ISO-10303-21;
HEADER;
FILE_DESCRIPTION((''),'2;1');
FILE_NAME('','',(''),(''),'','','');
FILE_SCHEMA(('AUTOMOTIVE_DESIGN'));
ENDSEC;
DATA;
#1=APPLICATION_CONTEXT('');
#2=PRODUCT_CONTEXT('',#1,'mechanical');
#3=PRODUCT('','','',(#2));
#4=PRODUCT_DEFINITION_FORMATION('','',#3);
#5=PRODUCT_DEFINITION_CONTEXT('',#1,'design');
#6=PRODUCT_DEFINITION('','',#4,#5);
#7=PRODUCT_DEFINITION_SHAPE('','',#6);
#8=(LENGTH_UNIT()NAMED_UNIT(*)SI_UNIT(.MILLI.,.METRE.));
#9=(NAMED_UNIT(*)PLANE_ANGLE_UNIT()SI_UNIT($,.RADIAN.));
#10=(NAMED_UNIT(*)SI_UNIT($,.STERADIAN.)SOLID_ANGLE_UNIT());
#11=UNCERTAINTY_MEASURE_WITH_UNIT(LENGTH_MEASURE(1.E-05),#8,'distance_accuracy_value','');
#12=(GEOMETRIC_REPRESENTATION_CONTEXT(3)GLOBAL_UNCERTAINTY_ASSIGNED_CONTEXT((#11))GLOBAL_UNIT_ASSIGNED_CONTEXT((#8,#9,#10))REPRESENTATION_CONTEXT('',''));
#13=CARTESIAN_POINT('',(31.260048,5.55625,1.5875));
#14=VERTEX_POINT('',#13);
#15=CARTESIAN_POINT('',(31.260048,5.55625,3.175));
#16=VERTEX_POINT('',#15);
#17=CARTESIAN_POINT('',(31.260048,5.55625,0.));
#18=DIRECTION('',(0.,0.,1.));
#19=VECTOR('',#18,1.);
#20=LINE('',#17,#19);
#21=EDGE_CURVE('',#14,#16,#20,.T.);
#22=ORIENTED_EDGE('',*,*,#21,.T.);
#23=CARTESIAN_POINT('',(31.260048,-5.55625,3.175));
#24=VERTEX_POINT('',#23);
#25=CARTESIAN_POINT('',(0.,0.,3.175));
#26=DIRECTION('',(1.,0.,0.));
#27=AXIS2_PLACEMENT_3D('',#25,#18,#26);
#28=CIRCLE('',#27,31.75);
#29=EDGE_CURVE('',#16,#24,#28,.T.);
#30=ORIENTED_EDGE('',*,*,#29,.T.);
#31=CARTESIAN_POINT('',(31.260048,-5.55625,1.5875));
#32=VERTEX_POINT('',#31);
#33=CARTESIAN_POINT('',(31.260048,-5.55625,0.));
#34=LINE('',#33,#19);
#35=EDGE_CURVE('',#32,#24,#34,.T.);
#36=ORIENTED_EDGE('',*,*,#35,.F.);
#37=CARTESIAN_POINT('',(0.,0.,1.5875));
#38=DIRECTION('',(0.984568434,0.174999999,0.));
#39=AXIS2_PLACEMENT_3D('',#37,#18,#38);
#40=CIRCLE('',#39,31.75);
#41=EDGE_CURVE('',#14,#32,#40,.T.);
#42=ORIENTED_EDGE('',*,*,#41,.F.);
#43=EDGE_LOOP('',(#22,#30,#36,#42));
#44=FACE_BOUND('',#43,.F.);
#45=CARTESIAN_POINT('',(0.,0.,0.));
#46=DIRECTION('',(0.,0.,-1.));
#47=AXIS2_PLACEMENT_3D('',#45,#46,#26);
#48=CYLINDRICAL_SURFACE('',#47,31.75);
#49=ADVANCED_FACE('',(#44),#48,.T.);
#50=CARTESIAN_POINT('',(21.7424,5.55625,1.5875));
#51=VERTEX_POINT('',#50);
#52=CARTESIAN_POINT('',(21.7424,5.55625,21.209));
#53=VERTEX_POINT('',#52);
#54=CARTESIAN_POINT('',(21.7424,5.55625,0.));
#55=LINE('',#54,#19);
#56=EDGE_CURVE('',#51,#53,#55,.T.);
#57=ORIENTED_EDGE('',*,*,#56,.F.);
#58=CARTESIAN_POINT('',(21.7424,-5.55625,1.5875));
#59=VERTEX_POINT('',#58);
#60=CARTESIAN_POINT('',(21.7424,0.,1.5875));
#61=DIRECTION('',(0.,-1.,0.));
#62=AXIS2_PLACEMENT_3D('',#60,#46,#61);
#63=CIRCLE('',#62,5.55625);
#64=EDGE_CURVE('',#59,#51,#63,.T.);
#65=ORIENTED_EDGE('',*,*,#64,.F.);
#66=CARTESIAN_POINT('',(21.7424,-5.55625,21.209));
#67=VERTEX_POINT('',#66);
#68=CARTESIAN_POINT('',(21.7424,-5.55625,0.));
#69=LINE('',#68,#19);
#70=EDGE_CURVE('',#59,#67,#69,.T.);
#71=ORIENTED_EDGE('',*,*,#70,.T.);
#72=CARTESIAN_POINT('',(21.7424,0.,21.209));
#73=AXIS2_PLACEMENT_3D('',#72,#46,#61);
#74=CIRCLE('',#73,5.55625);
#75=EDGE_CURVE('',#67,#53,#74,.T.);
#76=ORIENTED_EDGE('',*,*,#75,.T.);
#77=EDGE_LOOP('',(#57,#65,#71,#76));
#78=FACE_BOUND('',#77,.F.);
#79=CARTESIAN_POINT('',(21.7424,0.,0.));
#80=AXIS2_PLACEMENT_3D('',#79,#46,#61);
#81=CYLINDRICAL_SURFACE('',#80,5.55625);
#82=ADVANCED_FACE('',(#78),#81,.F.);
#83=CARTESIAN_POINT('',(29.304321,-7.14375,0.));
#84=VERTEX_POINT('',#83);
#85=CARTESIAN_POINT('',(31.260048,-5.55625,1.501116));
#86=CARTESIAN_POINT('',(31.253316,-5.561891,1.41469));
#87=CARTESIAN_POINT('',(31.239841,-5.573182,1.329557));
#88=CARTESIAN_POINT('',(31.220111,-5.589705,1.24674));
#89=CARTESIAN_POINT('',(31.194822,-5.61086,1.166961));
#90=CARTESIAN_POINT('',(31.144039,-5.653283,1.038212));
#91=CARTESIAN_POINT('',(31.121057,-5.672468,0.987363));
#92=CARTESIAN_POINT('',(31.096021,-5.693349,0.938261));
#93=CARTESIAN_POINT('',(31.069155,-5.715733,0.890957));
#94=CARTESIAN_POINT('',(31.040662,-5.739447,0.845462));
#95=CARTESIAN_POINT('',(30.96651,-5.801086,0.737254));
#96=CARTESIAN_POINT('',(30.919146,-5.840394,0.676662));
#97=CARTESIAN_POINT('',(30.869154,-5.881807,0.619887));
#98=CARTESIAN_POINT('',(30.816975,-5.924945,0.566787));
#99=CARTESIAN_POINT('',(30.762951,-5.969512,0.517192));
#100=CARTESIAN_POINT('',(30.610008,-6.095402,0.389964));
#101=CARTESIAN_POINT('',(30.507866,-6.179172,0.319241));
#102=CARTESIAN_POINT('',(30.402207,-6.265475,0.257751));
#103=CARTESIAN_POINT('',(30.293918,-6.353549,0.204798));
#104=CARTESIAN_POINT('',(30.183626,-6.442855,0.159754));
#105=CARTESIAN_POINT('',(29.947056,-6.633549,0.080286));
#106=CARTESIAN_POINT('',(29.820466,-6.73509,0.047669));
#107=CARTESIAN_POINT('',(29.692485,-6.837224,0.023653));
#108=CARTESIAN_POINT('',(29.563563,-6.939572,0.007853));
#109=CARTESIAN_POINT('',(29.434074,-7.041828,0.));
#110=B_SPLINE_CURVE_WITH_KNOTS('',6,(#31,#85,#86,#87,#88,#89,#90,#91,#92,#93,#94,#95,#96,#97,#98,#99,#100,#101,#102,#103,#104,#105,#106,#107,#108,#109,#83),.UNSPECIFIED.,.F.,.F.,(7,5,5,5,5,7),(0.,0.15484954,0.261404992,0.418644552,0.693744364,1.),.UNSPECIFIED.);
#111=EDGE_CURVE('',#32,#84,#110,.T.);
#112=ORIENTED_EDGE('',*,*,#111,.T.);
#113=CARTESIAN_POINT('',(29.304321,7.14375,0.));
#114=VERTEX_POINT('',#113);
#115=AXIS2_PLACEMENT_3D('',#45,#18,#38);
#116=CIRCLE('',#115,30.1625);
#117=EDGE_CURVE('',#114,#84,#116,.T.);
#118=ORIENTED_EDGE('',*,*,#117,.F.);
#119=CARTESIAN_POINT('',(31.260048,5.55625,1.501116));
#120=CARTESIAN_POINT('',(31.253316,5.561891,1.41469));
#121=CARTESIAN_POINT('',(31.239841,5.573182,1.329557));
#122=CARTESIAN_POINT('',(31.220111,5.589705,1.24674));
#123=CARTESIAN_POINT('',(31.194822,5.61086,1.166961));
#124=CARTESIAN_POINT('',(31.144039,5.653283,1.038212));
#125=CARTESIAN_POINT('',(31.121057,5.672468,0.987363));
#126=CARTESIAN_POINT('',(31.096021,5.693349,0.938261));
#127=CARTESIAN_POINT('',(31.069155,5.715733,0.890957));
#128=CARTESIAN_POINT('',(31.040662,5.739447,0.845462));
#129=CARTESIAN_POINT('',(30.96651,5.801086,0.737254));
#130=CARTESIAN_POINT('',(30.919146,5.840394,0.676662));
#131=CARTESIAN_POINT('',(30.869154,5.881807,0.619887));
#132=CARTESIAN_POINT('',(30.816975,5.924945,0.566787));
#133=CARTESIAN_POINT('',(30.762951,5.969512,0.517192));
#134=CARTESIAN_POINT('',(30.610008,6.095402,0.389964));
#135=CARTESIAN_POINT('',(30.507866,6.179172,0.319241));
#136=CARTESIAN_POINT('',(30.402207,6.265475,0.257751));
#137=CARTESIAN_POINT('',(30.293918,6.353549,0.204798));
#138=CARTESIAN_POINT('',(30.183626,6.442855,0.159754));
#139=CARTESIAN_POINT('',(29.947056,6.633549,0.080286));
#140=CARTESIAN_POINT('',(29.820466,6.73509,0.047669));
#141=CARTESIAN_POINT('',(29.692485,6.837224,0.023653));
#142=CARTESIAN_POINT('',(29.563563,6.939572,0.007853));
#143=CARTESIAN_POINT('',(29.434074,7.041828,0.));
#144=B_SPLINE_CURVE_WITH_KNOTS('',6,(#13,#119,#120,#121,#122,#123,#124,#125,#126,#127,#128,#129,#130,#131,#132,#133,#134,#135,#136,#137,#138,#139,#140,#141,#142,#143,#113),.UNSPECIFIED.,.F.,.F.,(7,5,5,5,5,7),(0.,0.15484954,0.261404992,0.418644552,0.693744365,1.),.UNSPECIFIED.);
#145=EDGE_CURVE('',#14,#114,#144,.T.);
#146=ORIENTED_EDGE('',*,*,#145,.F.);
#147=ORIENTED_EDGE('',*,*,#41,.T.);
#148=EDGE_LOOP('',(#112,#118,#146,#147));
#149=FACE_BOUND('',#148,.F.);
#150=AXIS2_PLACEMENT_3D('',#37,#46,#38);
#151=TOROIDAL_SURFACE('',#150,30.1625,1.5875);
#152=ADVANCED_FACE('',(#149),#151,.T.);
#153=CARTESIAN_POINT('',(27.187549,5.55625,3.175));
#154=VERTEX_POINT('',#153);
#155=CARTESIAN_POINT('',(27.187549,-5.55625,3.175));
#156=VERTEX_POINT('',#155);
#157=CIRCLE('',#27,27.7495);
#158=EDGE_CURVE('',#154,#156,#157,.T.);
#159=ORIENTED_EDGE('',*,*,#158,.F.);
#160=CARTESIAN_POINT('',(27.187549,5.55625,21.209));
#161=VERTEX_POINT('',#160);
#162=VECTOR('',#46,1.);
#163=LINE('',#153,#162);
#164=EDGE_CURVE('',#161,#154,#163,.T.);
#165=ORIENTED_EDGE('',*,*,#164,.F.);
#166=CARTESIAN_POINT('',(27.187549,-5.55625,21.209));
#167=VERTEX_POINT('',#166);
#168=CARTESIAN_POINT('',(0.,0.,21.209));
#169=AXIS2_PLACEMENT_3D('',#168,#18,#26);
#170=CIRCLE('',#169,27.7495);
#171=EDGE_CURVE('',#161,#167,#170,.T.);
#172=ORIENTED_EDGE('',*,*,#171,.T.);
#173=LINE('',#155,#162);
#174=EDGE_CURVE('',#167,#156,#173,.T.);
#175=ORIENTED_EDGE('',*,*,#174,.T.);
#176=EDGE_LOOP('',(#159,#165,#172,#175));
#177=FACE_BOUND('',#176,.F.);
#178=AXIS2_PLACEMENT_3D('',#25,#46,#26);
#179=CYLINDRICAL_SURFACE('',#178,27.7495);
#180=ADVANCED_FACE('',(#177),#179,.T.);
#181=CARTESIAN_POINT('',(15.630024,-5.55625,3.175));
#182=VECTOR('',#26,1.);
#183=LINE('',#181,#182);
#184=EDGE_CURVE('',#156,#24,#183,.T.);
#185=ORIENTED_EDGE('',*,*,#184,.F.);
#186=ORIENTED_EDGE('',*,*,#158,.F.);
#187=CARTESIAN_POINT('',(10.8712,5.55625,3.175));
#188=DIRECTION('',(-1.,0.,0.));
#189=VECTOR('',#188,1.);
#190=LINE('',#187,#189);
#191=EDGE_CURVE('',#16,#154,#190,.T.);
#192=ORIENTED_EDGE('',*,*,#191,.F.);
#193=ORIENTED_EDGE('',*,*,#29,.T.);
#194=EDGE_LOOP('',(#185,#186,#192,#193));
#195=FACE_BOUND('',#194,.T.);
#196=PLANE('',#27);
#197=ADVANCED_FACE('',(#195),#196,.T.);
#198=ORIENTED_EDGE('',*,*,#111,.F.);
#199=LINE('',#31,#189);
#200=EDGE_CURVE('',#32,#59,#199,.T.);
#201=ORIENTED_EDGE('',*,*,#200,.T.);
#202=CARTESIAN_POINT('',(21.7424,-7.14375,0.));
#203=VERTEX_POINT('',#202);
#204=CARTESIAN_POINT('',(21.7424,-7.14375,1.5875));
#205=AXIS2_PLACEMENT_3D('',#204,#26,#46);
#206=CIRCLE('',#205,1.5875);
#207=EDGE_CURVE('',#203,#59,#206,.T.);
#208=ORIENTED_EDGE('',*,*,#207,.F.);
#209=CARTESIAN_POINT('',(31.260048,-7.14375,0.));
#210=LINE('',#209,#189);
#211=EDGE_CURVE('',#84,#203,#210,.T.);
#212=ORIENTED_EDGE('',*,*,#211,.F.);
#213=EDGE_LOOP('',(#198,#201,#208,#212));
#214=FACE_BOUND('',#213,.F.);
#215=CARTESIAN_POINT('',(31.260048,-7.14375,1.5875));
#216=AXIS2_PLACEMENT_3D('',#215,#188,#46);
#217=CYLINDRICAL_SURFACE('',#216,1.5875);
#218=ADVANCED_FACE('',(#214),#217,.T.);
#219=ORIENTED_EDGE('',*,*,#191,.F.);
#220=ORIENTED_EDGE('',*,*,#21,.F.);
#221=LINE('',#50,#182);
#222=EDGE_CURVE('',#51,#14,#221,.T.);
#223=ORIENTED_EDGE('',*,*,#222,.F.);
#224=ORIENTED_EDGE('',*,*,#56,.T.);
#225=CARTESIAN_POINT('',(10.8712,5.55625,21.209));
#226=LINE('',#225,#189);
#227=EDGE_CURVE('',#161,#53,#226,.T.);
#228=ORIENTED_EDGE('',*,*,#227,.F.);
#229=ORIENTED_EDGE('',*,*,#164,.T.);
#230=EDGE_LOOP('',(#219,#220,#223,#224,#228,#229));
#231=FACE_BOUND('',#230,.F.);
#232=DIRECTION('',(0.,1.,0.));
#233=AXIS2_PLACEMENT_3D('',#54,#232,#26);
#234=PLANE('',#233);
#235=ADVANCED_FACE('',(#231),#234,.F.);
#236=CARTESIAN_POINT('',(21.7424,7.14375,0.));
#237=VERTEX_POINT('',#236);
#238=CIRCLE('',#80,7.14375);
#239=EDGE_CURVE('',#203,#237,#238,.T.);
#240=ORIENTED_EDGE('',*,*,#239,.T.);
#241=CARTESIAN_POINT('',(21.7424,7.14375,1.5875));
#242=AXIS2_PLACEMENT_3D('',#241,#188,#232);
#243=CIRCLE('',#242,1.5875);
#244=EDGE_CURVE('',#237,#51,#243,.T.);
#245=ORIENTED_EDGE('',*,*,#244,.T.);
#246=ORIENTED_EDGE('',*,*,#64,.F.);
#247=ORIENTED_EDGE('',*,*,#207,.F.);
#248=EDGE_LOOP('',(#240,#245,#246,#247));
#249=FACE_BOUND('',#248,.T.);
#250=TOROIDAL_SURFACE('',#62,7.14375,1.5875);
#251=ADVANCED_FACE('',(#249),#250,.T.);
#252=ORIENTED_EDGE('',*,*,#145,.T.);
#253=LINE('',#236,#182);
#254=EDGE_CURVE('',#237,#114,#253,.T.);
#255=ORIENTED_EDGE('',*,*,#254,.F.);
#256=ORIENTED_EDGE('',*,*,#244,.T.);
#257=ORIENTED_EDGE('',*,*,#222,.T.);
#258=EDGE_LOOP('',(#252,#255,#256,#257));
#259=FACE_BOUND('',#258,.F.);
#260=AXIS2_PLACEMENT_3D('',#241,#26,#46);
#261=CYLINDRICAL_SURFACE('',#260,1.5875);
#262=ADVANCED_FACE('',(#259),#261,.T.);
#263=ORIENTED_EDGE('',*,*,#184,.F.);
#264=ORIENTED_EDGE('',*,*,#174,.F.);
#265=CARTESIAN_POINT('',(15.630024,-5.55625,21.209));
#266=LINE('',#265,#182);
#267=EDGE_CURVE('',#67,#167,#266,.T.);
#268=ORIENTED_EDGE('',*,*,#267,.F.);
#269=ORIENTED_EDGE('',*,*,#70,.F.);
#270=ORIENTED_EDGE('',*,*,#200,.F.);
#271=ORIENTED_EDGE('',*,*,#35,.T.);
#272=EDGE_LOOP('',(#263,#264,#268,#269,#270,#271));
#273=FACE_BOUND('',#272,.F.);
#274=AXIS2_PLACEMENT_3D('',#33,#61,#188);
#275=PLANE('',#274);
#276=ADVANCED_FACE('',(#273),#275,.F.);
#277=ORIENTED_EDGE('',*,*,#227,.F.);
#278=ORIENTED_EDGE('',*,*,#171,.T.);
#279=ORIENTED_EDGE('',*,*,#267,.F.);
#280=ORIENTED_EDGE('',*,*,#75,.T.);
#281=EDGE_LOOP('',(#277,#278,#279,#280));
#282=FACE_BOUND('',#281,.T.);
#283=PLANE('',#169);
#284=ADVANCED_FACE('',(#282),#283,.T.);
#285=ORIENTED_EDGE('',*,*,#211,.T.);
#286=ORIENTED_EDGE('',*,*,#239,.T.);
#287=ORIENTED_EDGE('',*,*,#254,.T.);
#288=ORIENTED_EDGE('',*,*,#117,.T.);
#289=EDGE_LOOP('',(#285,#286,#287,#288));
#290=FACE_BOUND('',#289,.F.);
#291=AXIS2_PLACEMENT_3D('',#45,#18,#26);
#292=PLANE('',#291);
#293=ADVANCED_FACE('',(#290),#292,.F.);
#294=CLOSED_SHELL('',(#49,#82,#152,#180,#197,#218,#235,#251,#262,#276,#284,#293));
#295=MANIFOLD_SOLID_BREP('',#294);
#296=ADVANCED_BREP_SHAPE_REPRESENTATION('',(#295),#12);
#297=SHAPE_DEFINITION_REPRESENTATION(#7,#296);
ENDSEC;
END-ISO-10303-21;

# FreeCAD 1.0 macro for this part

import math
import FreeCAD as App
import Part
import Sketcher
from FreeCAD import Vector
Q = App.Units.Quantity


def edges_at(feature, points):
    """Names of the edges that pass closest to the given points."""
    edges = feature.Shape.Edges
    near = lambda p: min(range(len(edges)), key=lambda i: edges[i].distToShape(Part.Vertex(*p))[0])
    return sorted({f"Edge{near(p) + 1}" for p in points})

doc = App.newDocument("Part")
params = doc.addObject("Spreadsheet::Sheet", "Params")
for row, (alias, value) in enumerate([
    ("sketch1_diameter", "2.5 in"),
    ("pad1_length", "0.125 in"),
    ("sketch2_diameter", "2.185 in"),
    ("pad2_length", "0.71 in"),
    ("sketch3_radius", "0.21875 in"),
    ("pocket1_length", "1 in"),
    ("fillet_radius", "0.0625 in"),
], start=1):
    params.set(f"A{row}", alias)
    params.set(f"B{row}", "=" + value)
    params.setAlias(f"B{row}", alias)

body = doc.addObject("PartDesign::Body", "Body")

sketch1 = body.newObject("Sketcher::SketchObject", "Sketch")
sketch1.AttachmentSupport = (doc.getObject("XY_Plane"), [""])
sketch1.MapMode = "FlatFace"
sketch1.addGeometry(Part.Circle(Vector(0, 0, 0), Vector(0, 0, 1), 31.75), False)
sketch1.addConstraint(Sketcher.Constraint("Coincident", 0, 3, -1, 1))
sketch1.addConstraint(Sketcher.Constraint("Diameter", 0, Q("2.5 in")))
sketch1.setExpression("Constraints[1]", "Params.sketch1_diameter")
pad1 = body.newObject("PartDesign::Pad", "Pad")
pad1.Profile = sketch1
pad1.setExpression("Length", "Params.pad1_length")

sketch2 = body.newObject("Sketcher::SketchObject", "Sketch001")
sketch2.AttachmentSupport = (doc.getObject("XY_Plane"), [""])
sketch2.MapMode = "FlatFace"
sketch2.AttachmentOffset = App.Placement(Vector(0, 0, 0.125 * 25.4), App.Rotation())
sketch2.addGeometry(Part.Circle(Vector(0, 0, 0), Vector(0, 0, 1), 27.7495), False)
sketch2.addConstraint(Sketcher.Constraint("Coincident", 0, 3, -1, 1))
sketch2.addConstraint(Sketcher.Constraint("Diameter", 0, Q("2.185 in")))
sketch2.setExpression("Constraints[1]", "Params.sketch2_diameter")
pad2 = body.newObject("PartDesign::Pad", "Pad001")
pad2.Profile = sketch2
pad2.setExpression("Length", "Params.pad2_length")

sketch3 = body.newObject("Sketcher::SketchObject", "Sketch002")
sketch3.AttachmentSupport = (doc.getObject("XY_Plane"), [""])
sketch3.MapMode = "FlatFace"
sketch3.addGeometry(Part.ArcOfCircle(Part.Circle(Vector(0.00003, -0.000004, 0), Vector(0, 0, 1), 31.74997), math.radians(-10.07866), math.radians(0.000007)), False)
sketch3.addGeometry(Part.LineSegment(Vector(31.260048, -5.55625, 0), Vector(21.7424, -5.55625, 0)), False)
sketch3.addGeometry(Part.ArcOfCircle(Part.Circle(Vector(21.7424, 0, 0), Vector(0, 0, 1), 5.55625), math.radians(90), math.radians(270)), False)
sketch3.addGeometry(Part.LineSegment(Vector(21.7424, 5.55625, 0), Vector(31.260048, 5.55625, 0)), False)
sketch3.addGeometry(Part.ArcOfCircle(Part.Circle(Vector(0.00003, 0.000004, 0), Vector(0, 0, 1), 31.74997), math.radians(-0.000007), math.radians(10.07866)), False)
sketch3.addConstraint(Sketcher.Constraint("Coincident", 0, 1, 1, 1))
sketch3.addConstraint(Sketcher.Constraint("Tangent", 1, 2, 2, 2))
sketch3.addConstraint(Sketcher.Constraint("Tangent", 2, 1, 3, 1))
sketch3.addConstraint(Sketcher.Constraint("Coincident", 3, 2, 4, 2))
sketch3.addConstraint(Sketcher.Constraint("Tangent", 4, 1, 0, 2))
sketch3.addConstraint(Sketcher.Constraint("Horizontal", 1))
sketch3.addConstraint(Sketcher.Constraint("Horizontal", 3))
sketch3.addConstraint(Sketcher.Constraint("Equal", 0, 4))
sketch3.addConstraint(Sketcher.Constraint("Symmetric", 0, 1, 3, 2, -1))
sketch3.addConstraint(Sketcher.Constraint("PointOnObject", 4, 1, -1))
sketch3.addConstraint(Sketcher.Constraint("Radius", 2, Q("0.21875 in")))
sketch3.addConstraint(Sketcher.Constraint("DistanceX", -1, 1, 4, 1, Q("1.25 in")))
sketch3.addConstraint(Sketcher.Constraint("DistanceX", -1, 1, 2, 3, Q("0.856 in")))
sketch3.addConstraint(Sketcher.Constraint("Radius", 0, Q("31.74997 mm")))
sketch3.setExpression("Constraints[10]", "Params.sketch3_radius")
pocket1 = body.newObject("PartDesign::Pocket", "Pocket")
pocket1.Profile = sketch3
pocket1.setExpression("Length", "Params.pocket1_length")
pocket1.Reversed = True
doc.recompute()

fillet = body.newObject("PartDesign::Fillet", "Fillet")
fillet.Base = (pocket1, edges_at(pocket1, [
    (-31.75, 0, 0),
    (26.501, -5.556, 0),
    (16.186, 0, 0),
    (26.501, 5.556, 0),
]))
fillet.setExpression("Radius", "Params.fillet_radius")

doc.recompute()
